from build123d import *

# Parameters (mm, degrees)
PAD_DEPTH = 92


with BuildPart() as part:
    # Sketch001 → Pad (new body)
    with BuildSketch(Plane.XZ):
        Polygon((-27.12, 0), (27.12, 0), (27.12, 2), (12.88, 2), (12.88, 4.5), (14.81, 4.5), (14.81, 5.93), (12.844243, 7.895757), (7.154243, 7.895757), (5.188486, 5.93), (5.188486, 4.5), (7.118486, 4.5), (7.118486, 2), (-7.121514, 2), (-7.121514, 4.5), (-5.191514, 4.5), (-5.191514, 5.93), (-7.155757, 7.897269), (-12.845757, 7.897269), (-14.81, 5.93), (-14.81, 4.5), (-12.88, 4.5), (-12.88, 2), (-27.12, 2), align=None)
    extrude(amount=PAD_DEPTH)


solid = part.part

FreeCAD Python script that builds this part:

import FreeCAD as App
import Part
import Sketcher


def add_polygon(sketch, points):
    """Adds a closed chain of lines whose ends are joined by coincident constraints."""
    first, n = sketch.GeometryCount, len(points)
    for a, b in zip(points, points[1:] + points[:1]):
        sketch.addGeometry(Part.LineSegment(App.Vector(*a, 0), App.Vector(*b, 0)), False)
    for i in range(n):
        sketch.addConstraint(Sketcher.Constraint("Coincident", first + i, 2, first + (i + 1) % n, 1))

doc = App.newDocument("Part")
body = doc.addObject("PartDesign::Body", "Body")

sketch1 = body.newObject("Sketcher::SketchObject", "Sketch")
sketch1.AttachmentSupport = (doc.getObject("XZ_Plane"), [""])
sketch1.MapMode = "FlatFace"
add_polygon(sketch1, [(-27.1, 0), (27.1, 0), (27.1, 2), (12.9, 2), (12.9, 4.5), (14.8, 4.5), (14.8, 5.9), (12.8, 7.9), (7.2, 7.9), (5.2, 5.9), (5.2, 4.5), (7.1, 4.5), (7.1, 2), (-7.1, 2), (-7.1, 4.5), (-5.2, 4.5), (-5.2, 5.9), (-7.2, 7.9), (-12.8, 7.9), (-14.8, 5.9), (-14.8, 4.5), (-12.9, 4.5), (-12.9, 2), (-27.1, 2)])
sketch1.addConstraint([
    Sketcher.Constraint("Horizontal", 0),
    Sketcher.Constraint("Vertical", 1),
    Sketcher.Constraint("Horizontal", 2),
    Sketcher.Constraint("Vertical", 3),
    Sketcher.Constraint("Horizontal", 4),
    Sketcher.Constraint("Vertical", 5),
    Sketcher.Constraint("Horizontal", 7),
    Sketcher.Constraint("Vertical", 9),
    Sketcher.Constraint("Horizontal", 10),
    Sketcher.Constraint("Vertical", 11),
    Sketcher.Constraint("Horizontal", 12),
    Sketcher.Constraint("Vertical", 13),
    Sketcher.Constraint("Horizontal", 14),
    Sketcher.Constraint("Vertical", 15),
    Sketcher.Constraint("Horizontal", 17),
    Sketcher.Constraint("Vertical", 19),
    Sketcher.Constraint("Horizontal", 20),
    Sketcher.Constraint("Vertical", 21),
    Sketcher.Constraint("Horizontal", 22),
    Sketcher.Constraint("Vertical", 23),
    Sketcher.Constraint("Symmetric", 0, 2, 23, 2, -1, 1),
    Sketcher.Constraint("Symmetric", 5, 2, 18, 2, -2),
    Sketcher.Constraint("Symmetric", 3, 2, 20, 2, -2),
    Sketcher.Constraint("Perpendicular", 6, 8),
    Sketcher.Constraint("Horizontal", 5, 2, 8, 2),
    Sketcher.Constraint("Horizontal", 4, 2, 9, 2),
    Sketcher.Constraint("Horizontal", 2, 2, 11, 2),
    Sketcher.Constraint("Horizontal", 10, 2, 13, 2),
    Sketcher.Constraint("Horizontal", 8, 2, 15, 2),
    Sketcher.Constraint("Horizontal", 12, 2, 21, 2),
    Sketcher.Constraint("Equal", 4, 10),
    Sketcher.Constraint("Equal", 2, 12),
    Sketcher.Constraint("Equal", 10, 14),
    Sketcher.Constraint("Equal", 7, 17),
    Sketcher.Constraint("Equal", 6, 8),
    Sketcher.Constraint("Equal", 8, 16),
    Sketcher.Constraint("Equal", 16, 18),
    Sketcher.Constraint("DistanceY", 1, 1, 1, 2, 2.0),
    Sketcher.Constraint("DistanceY", 3, 1, 3, 2, 2.5),
    Sketcher.Constraint("DistanceX", 0, 1, 0, 2, 54.24),
    Sketcher.Constraint("DistanceX", 2, 2, 2, 1, 14.24),
    Sketcher.Constraint("DistanceX", 4, 1, 4, 2, 1.93),
    Sketcher.Constraint("DistanceX", 7, 2, 7, 1, 5.69),
    Sketcher.Constraint("DistanceY", 5, 1, 5, 2, 1.43),
    Sketcher.Constraint("Distance", 6, 2.78),
])
pad1 = body.newObject("PartDesign::Pad", "Pad")
pad1.Profile = sketch1
pad1.Length = 92

doc.recompute()
